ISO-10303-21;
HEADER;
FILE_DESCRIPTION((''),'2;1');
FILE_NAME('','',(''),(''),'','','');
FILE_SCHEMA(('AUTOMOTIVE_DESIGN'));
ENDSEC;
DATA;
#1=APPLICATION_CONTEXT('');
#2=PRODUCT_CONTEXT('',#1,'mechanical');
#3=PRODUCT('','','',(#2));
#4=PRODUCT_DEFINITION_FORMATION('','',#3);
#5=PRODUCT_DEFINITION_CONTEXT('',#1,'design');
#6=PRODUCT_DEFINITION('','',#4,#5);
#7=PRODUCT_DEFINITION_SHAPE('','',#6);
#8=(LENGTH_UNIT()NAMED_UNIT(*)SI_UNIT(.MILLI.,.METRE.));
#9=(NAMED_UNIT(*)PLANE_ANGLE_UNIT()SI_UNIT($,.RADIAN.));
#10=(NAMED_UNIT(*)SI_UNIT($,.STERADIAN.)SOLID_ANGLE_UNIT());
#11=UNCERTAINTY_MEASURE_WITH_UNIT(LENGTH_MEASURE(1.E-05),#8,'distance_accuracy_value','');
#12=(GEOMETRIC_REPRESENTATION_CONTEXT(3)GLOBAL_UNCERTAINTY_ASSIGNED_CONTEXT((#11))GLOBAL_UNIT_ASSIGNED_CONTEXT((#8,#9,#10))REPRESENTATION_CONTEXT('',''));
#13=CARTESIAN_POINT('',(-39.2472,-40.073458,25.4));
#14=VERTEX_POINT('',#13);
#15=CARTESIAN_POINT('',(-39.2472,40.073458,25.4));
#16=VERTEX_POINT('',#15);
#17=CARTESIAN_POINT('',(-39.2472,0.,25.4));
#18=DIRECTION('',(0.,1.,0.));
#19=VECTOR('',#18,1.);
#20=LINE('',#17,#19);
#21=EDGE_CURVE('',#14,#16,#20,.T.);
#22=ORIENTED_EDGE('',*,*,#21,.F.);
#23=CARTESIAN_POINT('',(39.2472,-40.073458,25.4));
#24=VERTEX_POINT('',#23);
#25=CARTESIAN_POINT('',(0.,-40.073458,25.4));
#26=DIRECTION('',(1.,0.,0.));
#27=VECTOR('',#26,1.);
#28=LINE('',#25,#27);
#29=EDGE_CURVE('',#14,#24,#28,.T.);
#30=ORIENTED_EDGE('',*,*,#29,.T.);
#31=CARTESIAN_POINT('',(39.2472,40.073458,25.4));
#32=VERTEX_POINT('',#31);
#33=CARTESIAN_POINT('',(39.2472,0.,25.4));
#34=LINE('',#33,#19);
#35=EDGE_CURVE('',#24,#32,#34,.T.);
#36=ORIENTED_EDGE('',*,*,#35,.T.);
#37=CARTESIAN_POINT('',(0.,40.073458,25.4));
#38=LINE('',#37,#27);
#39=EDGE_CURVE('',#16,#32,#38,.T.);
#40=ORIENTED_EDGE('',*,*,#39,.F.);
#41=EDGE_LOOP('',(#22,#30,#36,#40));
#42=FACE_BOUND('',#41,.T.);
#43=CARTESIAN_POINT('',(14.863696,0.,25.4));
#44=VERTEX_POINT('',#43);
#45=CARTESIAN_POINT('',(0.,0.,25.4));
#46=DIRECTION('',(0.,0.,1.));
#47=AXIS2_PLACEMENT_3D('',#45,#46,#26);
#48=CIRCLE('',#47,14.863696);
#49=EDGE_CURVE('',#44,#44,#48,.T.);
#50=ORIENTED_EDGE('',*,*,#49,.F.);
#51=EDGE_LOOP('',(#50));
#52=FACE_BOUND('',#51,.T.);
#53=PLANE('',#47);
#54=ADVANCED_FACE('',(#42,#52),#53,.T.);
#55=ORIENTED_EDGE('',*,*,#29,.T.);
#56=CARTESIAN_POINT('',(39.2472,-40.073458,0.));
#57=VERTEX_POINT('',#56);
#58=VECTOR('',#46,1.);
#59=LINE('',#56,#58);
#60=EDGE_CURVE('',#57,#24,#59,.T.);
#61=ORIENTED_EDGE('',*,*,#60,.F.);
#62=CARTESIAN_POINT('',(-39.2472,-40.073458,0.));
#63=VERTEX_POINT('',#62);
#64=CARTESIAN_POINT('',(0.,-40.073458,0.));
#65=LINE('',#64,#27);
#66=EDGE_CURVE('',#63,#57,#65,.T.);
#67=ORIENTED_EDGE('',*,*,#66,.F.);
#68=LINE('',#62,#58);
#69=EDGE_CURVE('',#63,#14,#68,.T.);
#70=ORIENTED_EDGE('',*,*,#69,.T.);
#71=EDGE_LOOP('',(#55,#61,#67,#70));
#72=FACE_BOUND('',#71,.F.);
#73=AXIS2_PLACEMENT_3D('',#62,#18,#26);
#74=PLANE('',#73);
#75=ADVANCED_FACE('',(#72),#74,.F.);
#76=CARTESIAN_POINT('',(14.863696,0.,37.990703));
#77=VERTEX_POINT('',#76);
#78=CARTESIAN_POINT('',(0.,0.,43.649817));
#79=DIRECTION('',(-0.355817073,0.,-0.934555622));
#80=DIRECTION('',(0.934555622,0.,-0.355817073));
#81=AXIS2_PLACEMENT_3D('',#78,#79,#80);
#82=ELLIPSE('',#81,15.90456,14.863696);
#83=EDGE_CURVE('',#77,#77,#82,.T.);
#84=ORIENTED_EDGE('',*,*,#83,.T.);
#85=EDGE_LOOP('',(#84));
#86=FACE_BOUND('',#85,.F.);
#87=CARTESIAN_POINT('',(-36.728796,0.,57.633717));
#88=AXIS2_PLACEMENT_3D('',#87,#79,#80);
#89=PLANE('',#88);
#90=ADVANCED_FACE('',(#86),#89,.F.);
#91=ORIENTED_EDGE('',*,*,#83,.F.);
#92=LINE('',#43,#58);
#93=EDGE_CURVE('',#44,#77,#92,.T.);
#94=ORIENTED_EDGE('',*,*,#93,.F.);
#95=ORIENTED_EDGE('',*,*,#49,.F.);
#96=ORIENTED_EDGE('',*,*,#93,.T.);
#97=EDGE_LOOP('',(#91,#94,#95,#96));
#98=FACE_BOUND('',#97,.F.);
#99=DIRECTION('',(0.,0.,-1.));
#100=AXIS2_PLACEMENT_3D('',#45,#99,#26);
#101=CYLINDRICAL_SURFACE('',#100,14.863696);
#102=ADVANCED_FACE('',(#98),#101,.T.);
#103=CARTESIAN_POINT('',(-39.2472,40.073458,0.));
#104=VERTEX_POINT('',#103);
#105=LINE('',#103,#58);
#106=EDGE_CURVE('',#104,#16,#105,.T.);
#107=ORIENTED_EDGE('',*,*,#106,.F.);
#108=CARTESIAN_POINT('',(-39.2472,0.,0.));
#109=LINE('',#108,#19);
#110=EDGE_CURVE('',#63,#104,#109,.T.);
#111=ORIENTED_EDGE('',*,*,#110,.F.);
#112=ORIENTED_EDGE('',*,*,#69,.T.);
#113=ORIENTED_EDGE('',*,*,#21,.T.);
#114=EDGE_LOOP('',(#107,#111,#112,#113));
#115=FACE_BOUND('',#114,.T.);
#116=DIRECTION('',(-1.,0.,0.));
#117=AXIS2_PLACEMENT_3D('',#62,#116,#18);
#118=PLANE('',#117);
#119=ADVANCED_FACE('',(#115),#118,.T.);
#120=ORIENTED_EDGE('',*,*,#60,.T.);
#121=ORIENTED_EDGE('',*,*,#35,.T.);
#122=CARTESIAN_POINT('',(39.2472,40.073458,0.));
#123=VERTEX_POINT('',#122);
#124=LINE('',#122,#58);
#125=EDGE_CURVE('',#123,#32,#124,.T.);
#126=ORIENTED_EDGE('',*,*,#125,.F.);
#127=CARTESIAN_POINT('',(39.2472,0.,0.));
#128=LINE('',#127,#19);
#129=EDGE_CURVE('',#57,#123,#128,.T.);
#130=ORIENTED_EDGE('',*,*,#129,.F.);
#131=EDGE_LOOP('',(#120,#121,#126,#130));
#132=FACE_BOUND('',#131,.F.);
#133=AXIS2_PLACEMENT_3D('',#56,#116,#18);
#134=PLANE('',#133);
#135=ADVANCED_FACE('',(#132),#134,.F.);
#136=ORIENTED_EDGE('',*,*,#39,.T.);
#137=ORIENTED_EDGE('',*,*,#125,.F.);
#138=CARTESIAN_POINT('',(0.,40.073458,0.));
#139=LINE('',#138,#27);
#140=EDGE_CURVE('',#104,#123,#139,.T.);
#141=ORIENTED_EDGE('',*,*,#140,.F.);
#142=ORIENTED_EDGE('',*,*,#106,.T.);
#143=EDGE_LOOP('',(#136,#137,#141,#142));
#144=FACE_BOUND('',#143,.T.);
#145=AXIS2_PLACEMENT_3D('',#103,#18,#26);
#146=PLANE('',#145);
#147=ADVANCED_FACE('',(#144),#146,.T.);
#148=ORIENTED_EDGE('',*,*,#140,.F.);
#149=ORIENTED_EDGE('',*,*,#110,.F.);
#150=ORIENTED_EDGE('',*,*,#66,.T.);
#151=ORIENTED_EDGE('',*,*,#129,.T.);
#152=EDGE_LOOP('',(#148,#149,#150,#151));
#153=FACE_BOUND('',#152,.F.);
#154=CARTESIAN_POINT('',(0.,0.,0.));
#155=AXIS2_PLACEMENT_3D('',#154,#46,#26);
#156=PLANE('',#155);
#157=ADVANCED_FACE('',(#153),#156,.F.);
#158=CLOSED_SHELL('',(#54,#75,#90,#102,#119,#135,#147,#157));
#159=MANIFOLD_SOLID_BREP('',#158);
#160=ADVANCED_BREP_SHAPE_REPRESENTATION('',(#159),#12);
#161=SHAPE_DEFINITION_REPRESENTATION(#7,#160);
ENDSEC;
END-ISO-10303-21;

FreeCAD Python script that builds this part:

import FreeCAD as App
import Part
import Sketcher
from FreeCAD import Vector
Q = App.Units.Quantity


def add_polygon(sketch, points):
    """Adds a closed chain of lines whose ends are joined by coincident constraints."""
    first, n = sketch.GeometryCount, len(points)
    for a, b in zip(points, points[1:] + points[:1]):
        sketch.addGeometry(Part.LineSegment(App.Vector(*a, 0), App.Vector(*b, 0)), False)
    for i in range(n):
        sketch.addConstraint(Sketcher.Constraint("Coincident", first + i, 2, first + (i + 1) % n, 1))

doc = App.newDocument("Part")
body = doc.addObject("PartDesign::Body", "Body")

# Sketch on XY plane
sketch1 = body.newObject("Sketcher::SketchObject", "Sketch")
sketch1.AttachmentSupport = (doc.getObject("XY_Plane"), [""])
sketch1.MapMode = "FlatFace"
add_polygon(sketch1, [(-39, 40), (-39, -40), (39, -40), (39, 40)])  # lines 0-3
sketch1.addConstraint([
    Sketcher.Constraint("Vertical", 0),
    Sketcher.Constraint("Horizontal", 1),
    Sketcher.Constraint("Vertical", 2),
    Sketcher.Constraint("Horizontal", 3),
    Sketcher.Constraint("Symmetric", 0, 2, 2, 2, -1, 1),
    Sketcher.Constraint("DistanceX", 1, 1, 1, 2, 78.4944),
    Sketcher.Constraint("DistanceY", 0, 2, 0, 1, 80.146916),
])
pad1 = body.newObject("PartDesign::Pad", "Pad")
pad1.Profile = sketch1
pad1.Length = Q("1 in")

# Sketch on XY plane
sketch2 = body.newObject("Sketcher::SketchObject", "Sketch001")
sketch2.AttachmentSupport = (doc.getObject("XY_Plane"), [""])
sketch2.MapMode = "FlatFace"
sketch2.AttachmentOffset = App.Placement(Vector(0, 0, 1 * 25.4), App.Rotation())
sketch2.addGeometry(Part.Circle(Vector(0, 0, 0), Vector(0, 0, 1), 15), False)
sketch2.addConstraint([
    Sketcher.Constraint("Coincident", 0, 3, -1, 1),
    Sketcher.Constraint("Diameter", 0, 29.727392),
])
pad2 = body.newObject("PartDesign::Pad", "Pad001")
pad2.Profile = sketch2
pad2.Length = Q("1 in")

# Sketch on XZ plane
sketch3 = body.newObject("Sketcher::SketchObject", "Sketch002")
sketch3.AttachmentSupport = (doc.getObject("XZ_Plane"), [""])
sketch3.MapMode = "FlatFace"
add_polygon(sketch3, [(27, 58), (-37, 58), (27, 34)])  # lines 0-2
sketch3.addConstraint([
    Sketcher.Constraint("Horizontal", 0),
    Sketcher.Constraint("Vertical", 2),
    Sketcher.Constraint("DistanceX", 0, 2, 0, 1, 63.295471),
    Sketcher.Constraint("Distance", 1, 67.72788),
    Sketcher.Constraint("DistanceY", -1, 1, 1, 2, 33.534981),
    Sketcher.Constraint("DistanceX", 0, 2, -1, 1, 36.728796),
])
pocket1 = body.newObject("PartDesign::Pocket", "Pocket")
pocket1.Profile = sketch3
pocket1.Length = Q("1.68 in")
pocket1.Midplane = True

doc.recompute()
